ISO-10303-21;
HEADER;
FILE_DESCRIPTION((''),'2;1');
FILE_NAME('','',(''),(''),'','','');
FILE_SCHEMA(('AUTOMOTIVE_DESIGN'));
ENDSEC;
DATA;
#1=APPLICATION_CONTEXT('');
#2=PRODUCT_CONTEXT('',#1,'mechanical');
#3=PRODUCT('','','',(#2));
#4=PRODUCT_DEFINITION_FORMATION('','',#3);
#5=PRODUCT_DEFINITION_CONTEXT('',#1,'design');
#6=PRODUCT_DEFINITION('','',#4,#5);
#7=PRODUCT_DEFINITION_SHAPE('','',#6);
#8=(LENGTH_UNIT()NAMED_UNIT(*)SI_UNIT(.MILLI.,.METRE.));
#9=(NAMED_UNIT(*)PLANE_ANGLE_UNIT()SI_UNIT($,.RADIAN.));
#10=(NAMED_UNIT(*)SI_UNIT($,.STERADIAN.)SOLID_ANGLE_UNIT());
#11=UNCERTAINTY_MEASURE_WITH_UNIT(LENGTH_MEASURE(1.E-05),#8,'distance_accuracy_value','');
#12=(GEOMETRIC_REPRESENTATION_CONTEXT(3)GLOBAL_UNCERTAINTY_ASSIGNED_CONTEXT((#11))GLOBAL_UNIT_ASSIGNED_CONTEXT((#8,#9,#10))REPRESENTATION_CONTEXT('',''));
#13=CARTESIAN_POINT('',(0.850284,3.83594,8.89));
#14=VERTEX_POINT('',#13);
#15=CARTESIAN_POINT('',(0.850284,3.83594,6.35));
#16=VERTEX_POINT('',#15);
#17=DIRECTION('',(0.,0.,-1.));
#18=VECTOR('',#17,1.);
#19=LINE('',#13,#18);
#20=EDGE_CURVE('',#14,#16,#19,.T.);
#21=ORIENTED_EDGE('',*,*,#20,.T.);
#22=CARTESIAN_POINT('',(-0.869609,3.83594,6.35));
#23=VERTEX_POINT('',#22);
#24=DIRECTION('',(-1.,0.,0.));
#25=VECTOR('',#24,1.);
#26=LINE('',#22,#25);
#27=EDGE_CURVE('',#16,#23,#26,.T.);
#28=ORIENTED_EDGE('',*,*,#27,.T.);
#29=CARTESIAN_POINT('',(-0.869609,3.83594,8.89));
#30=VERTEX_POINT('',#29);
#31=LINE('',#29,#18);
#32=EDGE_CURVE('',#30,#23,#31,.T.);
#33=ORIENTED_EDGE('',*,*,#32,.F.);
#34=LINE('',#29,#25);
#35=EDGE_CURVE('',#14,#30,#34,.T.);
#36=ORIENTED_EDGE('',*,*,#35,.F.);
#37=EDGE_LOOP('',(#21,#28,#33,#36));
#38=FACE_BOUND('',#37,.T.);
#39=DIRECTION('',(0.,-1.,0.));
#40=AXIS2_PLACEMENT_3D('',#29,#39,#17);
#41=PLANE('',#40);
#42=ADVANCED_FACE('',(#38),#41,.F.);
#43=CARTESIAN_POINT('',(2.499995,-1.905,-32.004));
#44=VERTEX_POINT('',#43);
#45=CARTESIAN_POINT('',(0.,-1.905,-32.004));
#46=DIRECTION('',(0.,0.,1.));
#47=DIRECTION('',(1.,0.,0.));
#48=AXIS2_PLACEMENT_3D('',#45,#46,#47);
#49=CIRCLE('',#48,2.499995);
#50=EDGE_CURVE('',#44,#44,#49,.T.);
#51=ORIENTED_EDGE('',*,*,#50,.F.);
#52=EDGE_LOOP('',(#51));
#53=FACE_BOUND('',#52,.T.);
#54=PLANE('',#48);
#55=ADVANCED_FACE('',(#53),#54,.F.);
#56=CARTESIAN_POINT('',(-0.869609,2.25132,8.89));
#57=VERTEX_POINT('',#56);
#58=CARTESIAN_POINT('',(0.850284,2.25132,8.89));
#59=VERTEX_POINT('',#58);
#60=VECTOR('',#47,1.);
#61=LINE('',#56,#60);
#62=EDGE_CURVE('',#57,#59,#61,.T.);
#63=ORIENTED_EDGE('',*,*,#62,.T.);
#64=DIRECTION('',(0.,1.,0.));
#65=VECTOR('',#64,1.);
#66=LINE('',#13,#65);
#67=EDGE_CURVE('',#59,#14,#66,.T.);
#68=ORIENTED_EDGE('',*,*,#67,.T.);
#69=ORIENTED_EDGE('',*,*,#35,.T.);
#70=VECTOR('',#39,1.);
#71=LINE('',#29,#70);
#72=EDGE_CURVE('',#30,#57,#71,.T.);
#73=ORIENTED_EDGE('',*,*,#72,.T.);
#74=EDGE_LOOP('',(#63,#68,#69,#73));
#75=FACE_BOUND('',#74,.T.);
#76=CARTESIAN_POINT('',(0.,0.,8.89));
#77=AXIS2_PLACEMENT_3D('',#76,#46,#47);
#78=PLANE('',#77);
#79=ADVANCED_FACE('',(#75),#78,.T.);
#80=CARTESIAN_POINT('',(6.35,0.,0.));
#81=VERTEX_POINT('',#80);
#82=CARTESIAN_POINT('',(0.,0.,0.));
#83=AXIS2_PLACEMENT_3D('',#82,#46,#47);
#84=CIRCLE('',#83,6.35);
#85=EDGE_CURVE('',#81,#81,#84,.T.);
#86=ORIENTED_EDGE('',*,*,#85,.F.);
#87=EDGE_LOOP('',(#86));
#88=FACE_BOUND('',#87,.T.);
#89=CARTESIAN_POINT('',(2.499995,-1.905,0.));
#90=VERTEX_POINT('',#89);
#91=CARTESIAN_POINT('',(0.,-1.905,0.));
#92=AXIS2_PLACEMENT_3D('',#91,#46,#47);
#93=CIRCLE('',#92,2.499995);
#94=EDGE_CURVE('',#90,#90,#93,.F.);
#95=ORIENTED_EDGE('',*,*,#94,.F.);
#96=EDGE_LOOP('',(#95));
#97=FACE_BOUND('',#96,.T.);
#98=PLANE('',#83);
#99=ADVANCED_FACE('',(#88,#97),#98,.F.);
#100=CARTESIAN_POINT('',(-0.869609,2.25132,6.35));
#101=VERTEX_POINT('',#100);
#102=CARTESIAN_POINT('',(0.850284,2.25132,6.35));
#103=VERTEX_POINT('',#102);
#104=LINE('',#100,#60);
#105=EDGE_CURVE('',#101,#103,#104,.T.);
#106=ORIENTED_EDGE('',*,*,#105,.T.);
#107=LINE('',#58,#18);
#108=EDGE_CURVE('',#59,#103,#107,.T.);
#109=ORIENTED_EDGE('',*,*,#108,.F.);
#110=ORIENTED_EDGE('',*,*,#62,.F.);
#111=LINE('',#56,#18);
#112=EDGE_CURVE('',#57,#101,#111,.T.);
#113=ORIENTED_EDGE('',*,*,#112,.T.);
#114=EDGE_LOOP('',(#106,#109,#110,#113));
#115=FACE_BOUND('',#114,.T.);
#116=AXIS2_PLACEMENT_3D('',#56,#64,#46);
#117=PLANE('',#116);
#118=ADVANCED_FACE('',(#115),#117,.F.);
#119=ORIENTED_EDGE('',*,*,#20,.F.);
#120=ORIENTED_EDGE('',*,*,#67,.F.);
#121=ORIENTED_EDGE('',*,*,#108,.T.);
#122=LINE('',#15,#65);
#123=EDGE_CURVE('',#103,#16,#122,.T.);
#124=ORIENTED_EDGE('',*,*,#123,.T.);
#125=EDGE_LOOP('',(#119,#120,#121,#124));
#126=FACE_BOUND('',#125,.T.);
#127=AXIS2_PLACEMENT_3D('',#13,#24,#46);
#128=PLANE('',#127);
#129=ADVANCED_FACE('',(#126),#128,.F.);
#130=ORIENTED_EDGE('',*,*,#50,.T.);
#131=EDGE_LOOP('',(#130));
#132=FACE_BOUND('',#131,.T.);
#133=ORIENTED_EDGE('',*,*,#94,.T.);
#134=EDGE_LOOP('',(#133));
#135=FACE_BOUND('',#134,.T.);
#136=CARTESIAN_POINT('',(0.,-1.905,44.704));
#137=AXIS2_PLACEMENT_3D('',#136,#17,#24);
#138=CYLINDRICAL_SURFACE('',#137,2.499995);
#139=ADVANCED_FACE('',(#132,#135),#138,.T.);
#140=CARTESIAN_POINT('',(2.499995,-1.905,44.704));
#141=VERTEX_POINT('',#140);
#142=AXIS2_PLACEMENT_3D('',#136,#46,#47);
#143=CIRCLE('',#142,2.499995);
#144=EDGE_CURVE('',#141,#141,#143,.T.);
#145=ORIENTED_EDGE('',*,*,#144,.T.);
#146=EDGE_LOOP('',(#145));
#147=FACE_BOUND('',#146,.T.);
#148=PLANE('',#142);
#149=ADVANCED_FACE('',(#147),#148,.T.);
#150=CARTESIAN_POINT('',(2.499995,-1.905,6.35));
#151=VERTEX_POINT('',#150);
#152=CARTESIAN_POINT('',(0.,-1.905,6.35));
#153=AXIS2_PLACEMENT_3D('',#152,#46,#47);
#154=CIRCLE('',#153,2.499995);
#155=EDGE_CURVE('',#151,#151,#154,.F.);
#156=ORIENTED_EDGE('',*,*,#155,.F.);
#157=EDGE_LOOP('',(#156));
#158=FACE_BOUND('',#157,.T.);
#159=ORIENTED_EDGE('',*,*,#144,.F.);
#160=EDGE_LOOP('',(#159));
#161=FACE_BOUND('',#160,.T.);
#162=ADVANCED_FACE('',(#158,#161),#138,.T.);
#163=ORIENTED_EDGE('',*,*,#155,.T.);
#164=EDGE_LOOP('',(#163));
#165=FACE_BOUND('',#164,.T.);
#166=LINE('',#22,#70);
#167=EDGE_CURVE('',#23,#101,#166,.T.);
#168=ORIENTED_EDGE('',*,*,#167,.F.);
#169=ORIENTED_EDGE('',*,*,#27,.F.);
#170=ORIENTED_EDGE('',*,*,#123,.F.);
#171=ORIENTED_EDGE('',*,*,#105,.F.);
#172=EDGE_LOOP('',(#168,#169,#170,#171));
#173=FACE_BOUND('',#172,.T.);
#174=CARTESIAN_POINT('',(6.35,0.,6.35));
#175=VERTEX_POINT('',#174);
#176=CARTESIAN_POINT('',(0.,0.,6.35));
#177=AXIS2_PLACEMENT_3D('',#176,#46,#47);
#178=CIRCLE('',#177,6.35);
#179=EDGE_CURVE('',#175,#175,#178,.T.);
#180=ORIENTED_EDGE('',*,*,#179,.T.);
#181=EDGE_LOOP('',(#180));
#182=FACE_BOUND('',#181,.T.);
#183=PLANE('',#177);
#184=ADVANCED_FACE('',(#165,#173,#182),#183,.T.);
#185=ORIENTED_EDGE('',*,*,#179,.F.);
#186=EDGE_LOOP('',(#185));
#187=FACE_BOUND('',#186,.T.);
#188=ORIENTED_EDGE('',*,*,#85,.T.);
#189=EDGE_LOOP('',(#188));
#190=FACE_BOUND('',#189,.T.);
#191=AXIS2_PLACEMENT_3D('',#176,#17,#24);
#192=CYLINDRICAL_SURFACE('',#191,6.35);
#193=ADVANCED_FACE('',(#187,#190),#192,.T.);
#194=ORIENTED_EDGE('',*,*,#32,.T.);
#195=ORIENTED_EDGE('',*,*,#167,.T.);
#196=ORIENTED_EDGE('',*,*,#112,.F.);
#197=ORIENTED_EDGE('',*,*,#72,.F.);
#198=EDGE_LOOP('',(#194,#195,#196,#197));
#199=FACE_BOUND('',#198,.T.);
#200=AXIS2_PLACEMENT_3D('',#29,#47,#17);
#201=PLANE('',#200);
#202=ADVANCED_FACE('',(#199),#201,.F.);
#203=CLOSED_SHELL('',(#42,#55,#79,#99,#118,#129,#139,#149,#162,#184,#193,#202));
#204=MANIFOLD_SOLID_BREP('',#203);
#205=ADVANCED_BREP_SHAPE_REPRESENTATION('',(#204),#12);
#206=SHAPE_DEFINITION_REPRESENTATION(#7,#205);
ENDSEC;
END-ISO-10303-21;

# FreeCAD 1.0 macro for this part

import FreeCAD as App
import Part
import Sketcher
from FreeCAD import Vector
Q = App.Units.Quantity

doc = App.newDocument("Part")
body = doc.addObject("PartDesign::Body", "Body")

# Sketch on XY plane
sketch1 = doc.addObject("Sketcher::SketchObject", "Sketch")
body.addObject(sketch1)
sketch1.AttachmentSupport = (doc.XY_Plane, [""])
sketch1.MapMode = "FlatFace"
sketch1.addGeometry(Part.Circle(Vector(0, 0, 0), Vector(0, 0, 1), 6), False)
sketch1.addConstraint([
    Sketcher.Constraint("Coincident", 0, 3, -1, 1),
    Sketcher.Constraint("Diameter", 0, Q("0.5 in")),
])
pad1 = doc.addObject("PartDesign::Pad", "Pad")
body.addObject(pad1)
pad1.Profile = sketch1
pad1.Length = Q("0.25 in")

# Sketch on XY plane
sketch2 = doc.addObject("Sketcher::SketchObject", "Sketch001")
body.addObject(sketch2)
sketch2.AttachmentSupport = (doc.XY_Plane, [""])
sketch2.MapMode = "FlatFace"
sketch2.AttachmentOffset = App.Placement(Vector(0, 0, 0.25 * 25.4), App.Rotation())
sketch2.addGeometry([
    Part.LineSegment(Vector(-0.9, 3.8, 0), Vector(-0.9, 2.3, 0)),
    Part.LineSegment(Vector(-0.9, 2.3, 0), Vector(0.9, 2.3, 0)),
    Part.LineSegment(Vector(0.9, 2.3, 0), Vector(0.9, 3.8, 0)),
    Part.LineSegment(Vector(0.9, 3.8, 0), Vector(-0.9, 3.8, 0)),
], False)
sketch2.addConstraint([
    Sketcher.Constraint("Coincident", 0, 2, 1, 1),
    Sketcher.Constraint("Coincident", 1, 2, 2, 1),
    Sketcher.Constraint("Coincident", 2, 2, 3, 1),
    Sketcher.Constraint("Coincident", 3, 2, 0, 1),
    Sketcher.Constraint("Vertical", 0),
    Sketcher.Constraint("Horizontal", 1),
    Sketcher.Constraint("Vertical", 2),
    Sketcher.Constraint("Horizontal", 3),
    Sketcher.Constraint("DistanceY", 0, 2, 0, 1, 1.58462),
    Sketcher.Constraint("DistanceX", 1, 1, 1, 2, 1.719893),
    Sketcher.Constraint("DistanceX", 0, 2, -1, 1, 0.869609),
    Sketcher.Constraint("DistanceY", -1, 1, 0, 2, 2.25132),
])
pad2 = doc.addObject("PartDesign::Pad", "Pad001")
body.addObject(pad2)
pad2.Profile = sketch2
pad2.Length = Q("0.1 in")

# Sketch on XY plane
sketch3 = doc.addObject("Sketcher::SketchObject", "Sketch002")
body.addObject(sketch3)
sketch3.AttachmentSupport = (doc.XY_Plane, [""])
sketch3.MapMode = "FlatFace"
sketch3.AttachmentOffset = App.Placement(Vector(0, 0, 0.25 * 25.4), App.Rotation())
sketch3.addGeometry(Part.Circle(Vector(0, -1.9, 0), Vector(0, 0, 1), 2.5), False)
sketch3.addConstraint([
    Sketcher.Constraint("PointOnObject", 0, 3, -2),
    Sketcher.Constraint("Diameter", 0, 4.99999),
    Sketcher.Constraint("DistanceY", 0, 3, -1, 1, Q("0.075 in")),
])
pad3 = doc.addObject("PartDesign::Pad", "Pad002")
body.addObject(pad3)
pad3.Profile = sketch3
pad3.Length = Q("3.02 in")
pad3.Midplane = True

doc.recompute()
